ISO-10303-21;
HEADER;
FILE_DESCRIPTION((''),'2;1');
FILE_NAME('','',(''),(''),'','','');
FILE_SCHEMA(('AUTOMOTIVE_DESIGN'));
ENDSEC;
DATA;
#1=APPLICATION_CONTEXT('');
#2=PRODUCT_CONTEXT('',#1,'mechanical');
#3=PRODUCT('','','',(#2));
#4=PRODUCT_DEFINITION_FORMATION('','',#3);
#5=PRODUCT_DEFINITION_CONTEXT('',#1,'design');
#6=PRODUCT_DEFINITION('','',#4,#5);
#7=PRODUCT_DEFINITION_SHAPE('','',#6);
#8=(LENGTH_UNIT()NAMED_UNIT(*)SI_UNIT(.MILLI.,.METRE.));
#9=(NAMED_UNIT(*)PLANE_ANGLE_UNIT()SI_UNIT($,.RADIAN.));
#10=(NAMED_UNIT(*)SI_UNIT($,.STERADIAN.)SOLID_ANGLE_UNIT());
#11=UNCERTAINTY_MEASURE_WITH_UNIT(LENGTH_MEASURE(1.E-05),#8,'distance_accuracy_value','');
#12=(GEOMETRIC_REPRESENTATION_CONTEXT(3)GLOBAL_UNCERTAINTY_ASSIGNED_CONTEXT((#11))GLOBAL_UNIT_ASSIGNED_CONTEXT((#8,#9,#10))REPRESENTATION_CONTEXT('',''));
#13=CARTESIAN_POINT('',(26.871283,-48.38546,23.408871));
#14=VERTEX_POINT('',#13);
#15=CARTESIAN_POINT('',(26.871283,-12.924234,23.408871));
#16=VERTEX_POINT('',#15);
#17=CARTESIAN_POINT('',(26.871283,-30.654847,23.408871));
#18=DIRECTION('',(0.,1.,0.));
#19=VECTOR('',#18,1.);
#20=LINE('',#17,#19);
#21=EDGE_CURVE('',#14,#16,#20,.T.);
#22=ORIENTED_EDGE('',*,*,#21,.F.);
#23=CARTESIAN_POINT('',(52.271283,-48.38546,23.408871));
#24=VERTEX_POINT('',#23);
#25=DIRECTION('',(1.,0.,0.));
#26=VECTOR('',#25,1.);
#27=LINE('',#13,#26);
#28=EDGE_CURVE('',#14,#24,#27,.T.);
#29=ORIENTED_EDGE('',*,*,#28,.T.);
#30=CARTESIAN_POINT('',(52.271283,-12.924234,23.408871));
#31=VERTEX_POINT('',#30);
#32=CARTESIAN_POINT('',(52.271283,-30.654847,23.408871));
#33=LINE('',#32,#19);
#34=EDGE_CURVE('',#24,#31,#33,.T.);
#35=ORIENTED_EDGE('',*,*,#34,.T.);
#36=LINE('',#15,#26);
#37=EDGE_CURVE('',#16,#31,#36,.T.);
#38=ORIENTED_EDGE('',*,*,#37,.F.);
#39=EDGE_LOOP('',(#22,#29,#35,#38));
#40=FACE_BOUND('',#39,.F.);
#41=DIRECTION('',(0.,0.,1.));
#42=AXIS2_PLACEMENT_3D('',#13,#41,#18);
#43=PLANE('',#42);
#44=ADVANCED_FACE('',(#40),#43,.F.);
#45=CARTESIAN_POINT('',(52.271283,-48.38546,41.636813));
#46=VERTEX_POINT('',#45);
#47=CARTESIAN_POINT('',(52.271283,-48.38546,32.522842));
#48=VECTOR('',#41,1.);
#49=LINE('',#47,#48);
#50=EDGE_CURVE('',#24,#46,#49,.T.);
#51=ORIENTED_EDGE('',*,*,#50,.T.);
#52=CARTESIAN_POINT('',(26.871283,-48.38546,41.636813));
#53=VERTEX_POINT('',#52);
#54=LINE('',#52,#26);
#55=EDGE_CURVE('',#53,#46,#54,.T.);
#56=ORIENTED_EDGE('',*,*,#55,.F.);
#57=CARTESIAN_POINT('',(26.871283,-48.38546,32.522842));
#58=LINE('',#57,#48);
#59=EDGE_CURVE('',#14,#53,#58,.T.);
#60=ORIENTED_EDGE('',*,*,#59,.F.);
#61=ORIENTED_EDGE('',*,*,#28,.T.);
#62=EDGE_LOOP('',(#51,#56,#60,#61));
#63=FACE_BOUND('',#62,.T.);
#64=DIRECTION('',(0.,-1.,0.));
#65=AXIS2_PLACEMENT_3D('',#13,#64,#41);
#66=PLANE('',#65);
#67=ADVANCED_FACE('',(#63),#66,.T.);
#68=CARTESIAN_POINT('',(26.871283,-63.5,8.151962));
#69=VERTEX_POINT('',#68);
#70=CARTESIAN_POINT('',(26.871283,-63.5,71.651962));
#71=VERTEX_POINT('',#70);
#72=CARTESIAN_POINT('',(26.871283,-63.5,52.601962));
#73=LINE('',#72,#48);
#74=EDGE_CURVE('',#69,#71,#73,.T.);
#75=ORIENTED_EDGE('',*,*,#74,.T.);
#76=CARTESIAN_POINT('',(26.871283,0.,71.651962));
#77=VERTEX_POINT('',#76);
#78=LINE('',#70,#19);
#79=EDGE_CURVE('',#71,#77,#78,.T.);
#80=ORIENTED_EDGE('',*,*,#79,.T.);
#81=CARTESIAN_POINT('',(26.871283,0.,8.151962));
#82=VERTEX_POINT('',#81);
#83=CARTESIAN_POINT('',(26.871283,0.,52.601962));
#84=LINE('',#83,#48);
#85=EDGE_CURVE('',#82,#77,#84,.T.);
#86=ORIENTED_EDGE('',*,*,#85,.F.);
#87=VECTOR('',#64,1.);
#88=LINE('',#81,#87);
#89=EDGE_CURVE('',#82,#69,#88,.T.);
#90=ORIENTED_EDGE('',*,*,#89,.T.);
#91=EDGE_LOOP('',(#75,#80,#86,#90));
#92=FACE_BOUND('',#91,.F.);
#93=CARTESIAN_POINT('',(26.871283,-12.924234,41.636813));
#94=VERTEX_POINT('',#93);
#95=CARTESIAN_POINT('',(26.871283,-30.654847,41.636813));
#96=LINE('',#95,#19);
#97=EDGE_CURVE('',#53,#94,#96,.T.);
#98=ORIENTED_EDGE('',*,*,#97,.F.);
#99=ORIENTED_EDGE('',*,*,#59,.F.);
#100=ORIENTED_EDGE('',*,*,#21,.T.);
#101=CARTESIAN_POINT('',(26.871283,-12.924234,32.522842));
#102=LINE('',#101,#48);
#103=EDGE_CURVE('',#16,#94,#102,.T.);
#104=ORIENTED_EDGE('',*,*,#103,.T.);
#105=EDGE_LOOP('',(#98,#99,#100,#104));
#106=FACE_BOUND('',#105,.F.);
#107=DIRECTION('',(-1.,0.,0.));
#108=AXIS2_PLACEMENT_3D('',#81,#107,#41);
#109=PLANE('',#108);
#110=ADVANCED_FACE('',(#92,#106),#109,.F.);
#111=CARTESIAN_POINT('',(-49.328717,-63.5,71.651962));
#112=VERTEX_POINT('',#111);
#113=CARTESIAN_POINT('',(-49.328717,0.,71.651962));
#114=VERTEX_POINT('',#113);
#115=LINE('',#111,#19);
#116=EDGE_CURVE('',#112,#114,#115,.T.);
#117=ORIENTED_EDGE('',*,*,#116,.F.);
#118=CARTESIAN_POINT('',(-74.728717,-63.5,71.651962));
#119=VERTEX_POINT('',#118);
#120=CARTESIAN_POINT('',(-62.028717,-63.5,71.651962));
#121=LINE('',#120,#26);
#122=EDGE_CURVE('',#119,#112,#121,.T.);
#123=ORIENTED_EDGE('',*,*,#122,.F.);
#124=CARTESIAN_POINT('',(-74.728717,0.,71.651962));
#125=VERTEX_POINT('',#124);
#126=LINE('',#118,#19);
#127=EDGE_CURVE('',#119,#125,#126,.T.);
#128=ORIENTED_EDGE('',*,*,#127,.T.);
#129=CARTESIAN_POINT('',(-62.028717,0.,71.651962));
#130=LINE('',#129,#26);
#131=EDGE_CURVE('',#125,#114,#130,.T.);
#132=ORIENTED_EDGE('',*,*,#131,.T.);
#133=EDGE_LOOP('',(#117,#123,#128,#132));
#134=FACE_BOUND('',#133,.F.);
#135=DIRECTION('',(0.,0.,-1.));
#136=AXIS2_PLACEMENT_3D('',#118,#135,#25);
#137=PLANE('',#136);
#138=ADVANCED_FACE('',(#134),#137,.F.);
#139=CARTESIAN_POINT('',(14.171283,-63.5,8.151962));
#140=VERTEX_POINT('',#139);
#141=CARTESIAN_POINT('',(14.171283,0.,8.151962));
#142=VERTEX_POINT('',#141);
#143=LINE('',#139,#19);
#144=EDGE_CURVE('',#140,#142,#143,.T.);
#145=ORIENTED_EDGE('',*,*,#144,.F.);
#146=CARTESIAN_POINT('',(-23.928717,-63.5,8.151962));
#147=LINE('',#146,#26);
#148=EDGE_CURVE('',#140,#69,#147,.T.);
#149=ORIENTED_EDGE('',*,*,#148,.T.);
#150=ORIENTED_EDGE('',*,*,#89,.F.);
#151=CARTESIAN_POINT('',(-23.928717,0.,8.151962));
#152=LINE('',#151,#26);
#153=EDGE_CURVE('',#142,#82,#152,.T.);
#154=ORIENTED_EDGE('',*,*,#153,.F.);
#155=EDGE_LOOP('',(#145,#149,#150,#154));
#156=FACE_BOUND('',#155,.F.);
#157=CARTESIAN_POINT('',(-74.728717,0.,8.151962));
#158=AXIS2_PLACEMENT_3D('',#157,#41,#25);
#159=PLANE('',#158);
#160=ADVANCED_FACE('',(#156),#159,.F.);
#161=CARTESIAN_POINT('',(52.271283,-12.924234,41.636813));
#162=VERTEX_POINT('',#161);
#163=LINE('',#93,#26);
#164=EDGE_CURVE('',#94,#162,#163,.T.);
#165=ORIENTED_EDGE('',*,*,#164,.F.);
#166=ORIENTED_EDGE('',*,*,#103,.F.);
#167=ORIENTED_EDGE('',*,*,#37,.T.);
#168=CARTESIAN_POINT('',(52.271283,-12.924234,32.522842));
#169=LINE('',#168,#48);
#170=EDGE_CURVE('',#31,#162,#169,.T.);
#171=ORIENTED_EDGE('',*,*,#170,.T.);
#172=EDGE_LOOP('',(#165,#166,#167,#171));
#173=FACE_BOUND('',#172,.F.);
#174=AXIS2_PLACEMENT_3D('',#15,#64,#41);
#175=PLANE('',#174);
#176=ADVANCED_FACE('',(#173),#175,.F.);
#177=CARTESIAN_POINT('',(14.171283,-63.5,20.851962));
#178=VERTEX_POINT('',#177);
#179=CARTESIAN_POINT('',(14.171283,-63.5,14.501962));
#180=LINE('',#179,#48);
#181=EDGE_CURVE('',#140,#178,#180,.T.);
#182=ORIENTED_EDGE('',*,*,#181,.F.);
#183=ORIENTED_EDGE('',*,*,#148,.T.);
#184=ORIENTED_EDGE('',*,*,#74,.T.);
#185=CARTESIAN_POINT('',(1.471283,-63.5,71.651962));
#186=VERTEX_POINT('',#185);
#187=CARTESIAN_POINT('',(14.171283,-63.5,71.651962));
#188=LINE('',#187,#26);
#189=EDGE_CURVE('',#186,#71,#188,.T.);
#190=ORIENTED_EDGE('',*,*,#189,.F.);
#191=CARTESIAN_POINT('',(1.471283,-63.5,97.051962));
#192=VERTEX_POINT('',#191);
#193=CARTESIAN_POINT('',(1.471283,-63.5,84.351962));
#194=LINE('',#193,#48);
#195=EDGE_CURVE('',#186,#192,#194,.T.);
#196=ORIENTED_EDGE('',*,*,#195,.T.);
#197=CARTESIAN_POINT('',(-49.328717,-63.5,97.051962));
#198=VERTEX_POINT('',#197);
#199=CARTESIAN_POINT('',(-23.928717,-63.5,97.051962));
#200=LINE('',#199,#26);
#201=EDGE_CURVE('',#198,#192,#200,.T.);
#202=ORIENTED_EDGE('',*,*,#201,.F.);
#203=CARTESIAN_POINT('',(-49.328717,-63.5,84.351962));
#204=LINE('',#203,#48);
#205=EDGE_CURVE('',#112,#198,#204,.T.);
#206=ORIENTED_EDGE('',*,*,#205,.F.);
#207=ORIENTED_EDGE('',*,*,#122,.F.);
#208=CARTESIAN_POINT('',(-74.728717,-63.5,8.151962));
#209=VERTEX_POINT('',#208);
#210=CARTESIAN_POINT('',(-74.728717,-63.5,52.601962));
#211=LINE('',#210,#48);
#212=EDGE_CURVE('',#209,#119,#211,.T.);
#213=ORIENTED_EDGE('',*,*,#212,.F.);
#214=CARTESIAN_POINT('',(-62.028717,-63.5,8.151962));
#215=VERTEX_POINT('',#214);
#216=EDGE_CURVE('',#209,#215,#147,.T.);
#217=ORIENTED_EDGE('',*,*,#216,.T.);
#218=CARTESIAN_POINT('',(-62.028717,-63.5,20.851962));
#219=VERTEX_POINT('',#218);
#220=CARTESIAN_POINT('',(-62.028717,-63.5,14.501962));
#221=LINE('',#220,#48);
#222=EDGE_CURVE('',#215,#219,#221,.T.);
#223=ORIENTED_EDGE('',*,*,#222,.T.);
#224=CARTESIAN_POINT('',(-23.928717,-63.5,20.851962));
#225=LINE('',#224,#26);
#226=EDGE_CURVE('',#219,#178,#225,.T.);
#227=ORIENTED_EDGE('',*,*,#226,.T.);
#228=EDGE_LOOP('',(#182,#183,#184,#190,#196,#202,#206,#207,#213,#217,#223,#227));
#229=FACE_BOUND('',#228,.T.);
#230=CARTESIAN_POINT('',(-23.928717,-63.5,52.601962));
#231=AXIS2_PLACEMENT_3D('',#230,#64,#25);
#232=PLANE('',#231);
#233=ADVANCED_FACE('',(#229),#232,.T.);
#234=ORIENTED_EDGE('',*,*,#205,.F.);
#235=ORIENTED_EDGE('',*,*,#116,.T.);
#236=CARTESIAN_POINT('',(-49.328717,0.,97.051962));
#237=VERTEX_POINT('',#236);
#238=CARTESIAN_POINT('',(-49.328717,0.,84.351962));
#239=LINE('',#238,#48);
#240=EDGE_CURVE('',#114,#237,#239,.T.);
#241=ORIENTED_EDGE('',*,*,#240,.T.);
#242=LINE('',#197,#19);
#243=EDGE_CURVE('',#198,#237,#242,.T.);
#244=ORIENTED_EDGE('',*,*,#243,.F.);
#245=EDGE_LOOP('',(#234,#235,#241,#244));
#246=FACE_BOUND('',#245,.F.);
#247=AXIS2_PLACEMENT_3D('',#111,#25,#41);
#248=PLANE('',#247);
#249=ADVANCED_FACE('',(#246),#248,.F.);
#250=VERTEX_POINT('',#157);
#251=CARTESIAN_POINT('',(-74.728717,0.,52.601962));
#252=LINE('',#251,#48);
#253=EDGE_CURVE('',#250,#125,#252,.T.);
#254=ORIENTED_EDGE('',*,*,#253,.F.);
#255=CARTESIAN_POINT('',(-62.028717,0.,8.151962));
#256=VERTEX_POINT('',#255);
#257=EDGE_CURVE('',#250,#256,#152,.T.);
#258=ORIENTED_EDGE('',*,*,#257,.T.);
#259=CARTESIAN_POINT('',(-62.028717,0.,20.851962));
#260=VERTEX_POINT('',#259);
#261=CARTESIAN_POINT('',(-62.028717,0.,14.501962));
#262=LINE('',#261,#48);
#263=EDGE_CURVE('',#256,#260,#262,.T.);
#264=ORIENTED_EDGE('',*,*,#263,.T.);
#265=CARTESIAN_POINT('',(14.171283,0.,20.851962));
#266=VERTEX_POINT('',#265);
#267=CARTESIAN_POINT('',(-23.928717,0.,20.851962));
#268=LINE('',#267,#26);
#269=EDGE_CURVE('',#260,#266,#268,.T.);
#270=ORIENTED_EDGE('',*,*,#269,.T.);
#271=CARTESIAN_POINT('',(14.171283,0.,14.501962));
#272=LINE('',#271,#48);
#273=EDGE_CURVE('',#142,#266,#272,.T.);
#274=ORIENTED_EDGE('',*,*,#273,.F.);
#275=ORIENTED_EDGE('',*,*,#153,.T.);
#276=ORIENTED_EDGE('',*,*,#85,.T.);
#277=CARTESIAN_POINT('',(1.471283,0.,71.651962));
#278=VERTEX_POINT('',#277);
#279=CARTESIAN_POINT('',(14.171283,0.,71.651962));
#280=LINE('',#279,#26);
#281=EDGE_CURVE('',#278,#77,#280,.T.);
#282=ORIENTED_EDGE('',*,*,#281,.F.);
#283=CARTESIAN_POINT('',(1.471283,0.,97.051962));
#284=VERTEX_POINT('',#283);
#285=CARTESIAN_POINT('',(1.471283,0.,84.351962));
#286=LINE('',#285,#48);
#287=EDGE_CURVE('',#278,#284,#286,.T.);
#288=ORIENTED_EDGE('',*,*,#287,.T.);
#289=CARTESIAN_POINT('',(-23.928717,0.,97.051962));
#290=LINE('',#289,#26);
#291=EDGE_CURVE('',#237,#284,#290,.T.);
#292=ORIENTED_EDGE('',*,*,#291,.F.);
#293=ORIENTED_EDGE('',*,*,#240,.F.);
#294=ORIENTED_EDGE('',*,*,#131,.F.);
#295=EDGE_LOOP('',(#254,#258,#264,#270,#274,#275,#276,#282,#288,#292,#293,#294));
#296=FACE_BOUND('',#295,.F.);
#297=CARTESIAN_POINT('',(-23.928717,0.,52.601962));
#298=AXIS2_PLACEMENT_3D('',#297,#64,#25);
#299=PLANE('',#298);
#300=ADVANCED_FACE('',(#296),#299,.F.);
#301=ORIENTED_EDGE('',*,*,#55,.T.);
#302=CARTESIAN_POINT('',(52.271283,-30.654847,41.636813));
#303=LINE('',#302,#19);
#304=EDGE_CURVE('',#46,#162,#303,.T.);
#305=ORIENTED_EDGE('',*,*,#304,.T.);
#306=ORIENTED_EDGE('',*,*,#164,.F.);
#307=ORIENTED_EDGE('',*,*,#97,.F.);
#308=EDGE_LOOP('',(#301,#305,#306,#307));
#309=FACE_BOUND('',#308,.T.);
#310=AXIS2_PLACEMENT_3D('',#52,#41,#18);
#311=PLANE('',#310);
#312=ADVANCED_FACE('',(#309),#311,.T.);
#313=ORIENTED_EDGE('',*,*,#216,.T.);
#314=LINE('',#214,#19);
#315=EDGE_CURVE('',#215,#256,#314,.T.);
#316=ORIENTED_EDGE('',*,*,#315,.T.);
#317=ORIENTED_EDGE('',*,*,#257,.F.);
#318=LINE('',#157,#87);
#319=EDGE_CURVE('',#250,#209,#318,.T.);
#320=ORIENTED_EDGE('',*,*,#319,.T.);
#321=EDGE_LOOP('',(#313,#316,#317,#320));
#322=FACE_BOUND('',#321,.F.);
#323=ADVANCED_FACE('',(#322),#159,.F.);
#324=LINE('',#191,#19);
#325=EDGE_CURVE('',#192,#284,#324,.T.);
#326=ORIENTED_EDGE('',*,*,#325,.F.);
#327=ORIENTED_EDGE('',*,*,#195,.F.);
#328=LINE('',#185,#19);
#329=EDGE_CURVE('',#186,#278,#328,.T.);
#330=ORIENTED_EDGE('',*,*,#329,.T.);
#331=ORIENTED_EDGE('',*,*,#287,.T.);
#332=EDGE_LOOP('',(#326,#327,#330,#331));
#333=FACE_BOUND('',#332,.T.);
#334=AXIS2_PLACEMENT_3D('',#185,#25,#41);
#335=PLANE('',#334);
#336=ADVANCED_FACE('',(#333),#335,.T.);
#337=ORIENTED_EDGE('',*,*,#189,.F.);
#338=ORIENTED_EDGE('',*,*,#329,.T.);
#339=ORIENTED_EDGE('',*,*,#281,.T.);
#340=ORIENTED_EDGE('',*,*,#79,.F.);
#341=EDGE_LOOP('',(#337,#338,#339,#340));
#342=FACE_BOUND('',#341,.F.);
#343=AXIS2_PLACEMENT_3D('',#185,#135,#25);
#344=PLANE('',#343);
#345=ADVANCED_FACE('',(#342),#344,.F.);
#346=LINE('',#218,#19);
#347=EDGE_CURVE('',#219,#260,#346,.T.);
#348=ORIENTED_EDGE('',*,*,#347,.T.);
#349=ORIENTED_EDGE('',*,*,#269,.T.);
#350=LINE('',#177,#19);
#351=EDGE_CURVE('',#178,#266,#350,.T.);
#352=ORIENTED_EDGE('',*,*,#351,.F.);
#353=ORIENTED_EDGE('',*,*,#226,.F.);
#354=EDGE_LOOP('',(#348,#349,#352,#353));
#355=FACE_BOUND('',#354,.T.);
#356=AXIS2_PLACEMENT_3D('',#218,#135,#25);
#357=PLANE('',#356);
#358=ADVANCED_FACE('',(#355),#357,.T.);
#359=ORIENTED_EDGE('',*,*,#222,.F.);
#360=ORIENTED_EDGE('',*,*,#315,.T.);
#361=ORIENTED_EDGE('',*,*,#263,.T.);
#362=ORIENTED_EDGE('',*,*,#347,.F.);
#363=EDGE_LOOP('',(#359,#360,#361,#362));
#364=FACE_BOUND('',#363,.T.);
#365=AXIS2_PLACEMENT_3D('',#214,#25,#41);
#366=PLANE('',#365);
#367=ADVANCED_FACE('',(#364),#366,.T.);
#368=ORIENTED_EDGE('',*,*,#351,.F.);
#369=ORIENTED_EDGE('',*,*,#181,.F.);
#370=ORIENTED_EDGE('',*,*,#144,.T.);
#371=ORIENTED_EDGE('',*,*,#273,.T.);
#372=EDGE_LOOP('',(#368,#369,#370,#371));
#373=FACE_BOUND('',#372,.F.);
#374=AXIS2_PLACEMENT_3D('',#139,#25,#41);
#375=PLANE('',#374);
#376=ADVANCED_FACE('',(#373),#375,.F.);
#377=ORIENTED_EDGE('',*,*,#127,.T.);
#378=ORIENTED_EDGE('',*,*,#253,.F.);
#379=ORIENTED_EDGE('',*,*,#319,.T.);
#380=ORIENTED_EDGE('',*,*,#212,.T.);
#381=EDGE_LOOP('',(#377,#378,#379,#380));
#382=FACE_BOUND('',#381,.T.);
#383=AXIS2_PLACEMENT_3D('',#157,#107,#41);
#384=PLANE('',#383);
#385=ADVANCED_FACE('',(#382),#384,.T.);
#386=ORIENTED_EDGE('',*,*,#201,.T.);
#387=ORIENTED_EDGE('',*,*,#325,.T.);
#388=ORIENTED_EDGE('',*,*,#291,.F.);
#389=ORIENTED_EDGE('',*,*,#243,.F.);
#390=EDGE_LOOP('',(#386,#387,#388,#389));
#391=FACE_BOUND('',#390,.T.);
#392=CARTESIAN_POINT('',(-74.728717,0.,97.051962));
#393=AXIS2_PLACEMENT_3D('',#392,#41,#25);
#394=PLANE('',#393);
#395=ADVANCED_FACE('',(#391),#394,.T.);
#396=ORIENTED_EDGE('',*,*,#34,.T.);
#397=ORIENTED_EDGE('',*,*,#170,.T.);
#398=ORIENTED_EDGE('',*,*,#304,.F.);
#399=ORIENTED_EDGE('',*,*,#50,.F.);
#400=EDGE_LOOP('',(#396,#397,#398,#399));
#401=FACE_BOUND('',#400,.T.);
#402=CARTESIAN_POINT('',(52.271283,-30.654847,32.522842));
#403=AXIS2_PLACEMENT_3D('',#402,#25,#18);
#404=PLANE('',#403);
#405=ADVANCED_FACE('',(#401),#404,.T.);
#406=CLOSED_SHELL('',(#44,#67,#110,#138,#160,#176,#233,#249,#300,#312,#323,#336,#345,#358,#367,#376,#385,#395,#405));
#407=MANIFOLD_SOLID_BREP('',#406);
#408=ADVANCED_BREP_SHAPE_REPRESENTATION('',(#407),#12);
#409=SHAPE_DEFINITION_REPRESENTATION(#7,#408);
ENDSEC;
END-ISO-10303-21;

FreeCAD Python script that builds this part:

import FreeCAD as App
import Part
import Sketcher

V = App.Vector
Q = App.Units.Quantity

doc = App.newDocument("Part")
body = doc.addObject("PartDesign::Body", "Body")

# Sketch on XZ plane
sketch1 = doc.addObject("Sketcher::SketchObject", "Sketch")
body.addObject(sketch1)
sketch1.AttachmentSupport = (doc.XZ_Plane, [""])
sketch1.MapMode = "FlatFace"
sketch1.addGeometry([
    Part.LineSegment(V(-75, 97, 0), V(-75, 8, 0)),
    Part.LineSegment(V(-75, 8, 0), V(27, 8, 0)),
    Part.LineSegment(V(27, 8, 0), V(27, 97, 0)),
    Part.LineSegment(V(27, 97, 0), V(-75, 97, 0)),
], False)
sketch1.addConstraint([
    Sketcher.Constraint("Coincident", 0, 2, 1, 1),
    Sketcher.Constraint("Coincident", 1, 2, 2, 1),
    Sketcher.Constraint("Coincident", 2, 2, 3, 1),
    Sketcher.Constraint("Coincident", 3, 2, 0, 1),
    Sketcher.Constraint("Vertical", 0),
    Sketcher.Constraint("Horizontal", 1),
    Sketcher.Constraint("Vertical", 2),
    Sketcher.Constraint("Horizontal", 3),
    Sketcher.Constraint("DistanceX", 1, 1, 1, 2, Q("4 in")),
    Sketcher.Constraint("DistanceY", 0, 2, 0, 1, Q("3.5 in")),
    Sketcher.Constraint("DistanceY", -1, 1, 0, 2, 8.151962),
    Sketcher.Constraint("DistanceX", 0, 2, -1, 1, 74.728717),
])
pad1 = doc.addObject("PartDesign::Pad", "Pad")
body.addObject(pad1)
pad1.Profile = sketch1
pad1.Length = Q("2.5 in")

# Sketch on XZ plane
sketch2 = doc.addObject("Sketcher::SketchObject", "Sketch001")
body.addObject(sketch2)
sketch2.AttachmentSupport = (doc.XZ_Plane, [""])
sketch2.MapMode = "FlatFace"
sketch2.AttachmentOffset = App.Placement(V(0, 0, 2.5 * 25.4), App.Rotation())
sketch2.addGeometry([
    Part.LineSegment(V(-75, 97, 0), V(-75, 72, 0)),
    Part.LineSegment(V(-75, 72, 0), V(-49, 72, 0)),
    Part.LineSegment(V(-49, 72, 0), V(-49, 97, 0)),
    Part.LineSegment(V(-49, 97, 0), V(-75, 97, 0)),
], False)
sketch2.addConstraint([
    Sketcher.Constraint("Coincident", 0, 2, 1, 1),
    Sketcher.Constraint("Coincident", 1, 2, 2, 1),
    Sketcher.Constraint("Coincident", 2, 2, 3, 1),
    Sketcher.Constraint("Coincident", 3, 2, 0, 1),
    Sketcher.Constraint("Vertical", 0),
    Sketcher.Constraint("Horizontal", 1),
    Sketcher.Constraint("Vertical", 2),
    Sketcher.Constraint("Horizontal", 3),
    Sketcher.Constraint("Equal", 3, 0),
    Sketcher.Constraint("DistanceX", 1, 1, 1, 2, Q("1 in")),
    Sketcher.Constraint("DistanceY", -1, 1, 0, 2, 71.651962),
    Sketcher.Constraint("DistanceX", 0, 2, -1, 1, 74.728717),
])
pocket1 = doc.addObject("PartDesign::Pocket", "Pocket")
body.addObject(pocket1)
pocket1.Profile = sketch2
pocket1.Length = Q("2.5 in")

# Sketch on XZ plane
sketch3 = doc.addObject("Sketcher::SketchObject", "Sketch002")
body.addObject(sketch3)
sketch3.AttachmentSupport = (doc.XZ_Plane, [""])
sketch3.MapMode = "FlatFace"
sketch3.AttachmentOffset = App.Placement(V(0, 0, 2.5 * 25.4), App.Rotation())
sketch3.addGeometry([
    Part.LineSegment(V(1, 97, 0), V(1, 72, 0)),
    Part.LineSegment(V(1, 72, 0), V(27, 72, 0)),
    Part.LineSegment(V(27, 72, 0), V(27, 97, 0)),
    Part.LineSegment(V(27, 97, 0), V(1, 97, 0)),
], False)
sketch3.addConstraint([
    Sketcher.Constraint("Coincident", 0, 2, 1, 1),
    Sketcher.Constraint("Coincident", 1, 2, 2, 1),
    Sketcher.Constraint("Coincident", 2, 2, 3, 1),
    Sketcher.Constraint("Coincident", 3, 2, 0, 1),
    Sketcher.Constraint("Vertical", 0),
    Sketcher.Constraint("Horizontal", 1),
    Sketcher.Constraint("Vertical", 2),
    Sketcher.Constraint("Horizontal", 3),
    Sketcher.Constraint("Equal", 3, 0),
    Sketcher.Constraint("DistanceX", 1, 1, 1, 2, Q("1 in")),
    Sketcher.Constraint("DistanceY", -1, 1, 0, 2, 71.651962),
    Sketcher.Constraint("DistanceX", -1, 1, 0, 2, 1.471283),
])
pocket2 = doc.addObject("PartDesign::Pocket", "Pocket001")
body.addObject(pocket2)
pocket2.Profile = sketch3
pocket2.Length = Q("2.5 in")

# Sketch on XZ plane
sketch4 = doc.addObject("Sketcher::SketchObject", "Sketch003")
body.addObject(sketch4)
sketch4.AttachmentSupport = (doc.XZ_Plane, [""])
sketch4.MapMode = "FlatFace"
sketch4.AttachmentOffset = App.Placement(V(0, 0, 2.5 * 25.4), App.Rotation())
sketch4.addGeometry([
    Part.LineSegment(V(-62, 21, 0), V(-62, 8, 0)),
    Part.LineSegment(V(-62, 8, 0), V(14, 8, 0)),
    Part.LineSegment(V(14, 8, 0), V(14, 21, 0)),
    Part.LineSegment(V(14, 21, 0), V(-62, 21, 0)),
], False)
sketch4.addConstraint([
    Sketcher.Constraint("Coincident", 0, 2, 1, 1),
    Sketcher.Constraint("Coincident", 1, 2, 2, 1),
    Sketcher.Constraint("Coincident", 2, 2, 3, 1),
    Sketcher.Constraint("Coincident", 3, 2, 0, 1),
    Sketcher.Constraint("Vertical", 0),
    Sketcher.Constraint("Horizontal", 1),
    Sketcher.Constraint("Vertical", 2),
    Sketcher.Constraint("Horizontal", 3),
    Sketcher.Constraint("DistanceX", 1, 1, 1, 2, Q("3 in")),
    Sketcher.Constraint("DistanceY", 0, 2, 0, 1, Q("0.5 in")),
    Sketcher.Constraint("DistanceY", -1, 1, 0, 2, 8.151962),
    Sketcher.Constraint("DistanceX", 0, 2, -1, 1, 62.028717),
])
pocket3 = doc.addObject("PartDesign::Pocket", "Pocket002")
body.addObject(pocket3)
pocket3.Profile = sketch4
pocket3.Length = Q("2.5 in")

# Sketch on YZ plane
sketch5 = doc.addObject("Sketcher::SketchObject", "Sketch004")
body.addObject(sketch5)
sketch5.AttachmentSupport = (doc.YZ_Plane, [""])
sketch5.MapMode = "FlatFace"
sketch5.AttachmentOffset = App.Placement(V(0, 0, 26.871283), App.Rotation())
sketch5.addGeometry([
    Part.LineSegment(V(-48, 42, 0), V(-48, 23, 0)),
    Part.LineSegment(V(-48, 23, 0), V(-13, 23, 0)),
    Part.LineSegment(V(-13, 23, 0), V(-13, 42, 0)),
    Part.LineSegment(V(-13, 42, 0), V(-48, 42, 0)),
], False)
sketch5.addConstraint([
    Sketcher.Constraint("Coincident", 0, 2, 1, 1),
    Sketcher.Constraint("Coincident", 1, 2, 2, 1),
    Sketcher.Constraint("Coincident", 2, 2, 3, 1),
    Sketcher.Constraint("Coincident", 3, 2, 0, 1),
    Sketcher.Constraint("Vertical", 0),
    Sketcher.Constraint("Horizontal", 1),
    Sketcher.Constraint("Vertical", 2),
    Sketcher.Constraint("Horizontal", 3),
    Sketcher.Constraint("DistanceY", 0, 2, 0, 1, 18.227942),
    Sketcher.Constraint("DistanceX", 1, 1, 1, 2, 35.461226),
    Sketcher.Constraint("DistanceX", 0, 2, -1, 1, 48.38546),
    Sketcher.Constraint("DistanceY", -1, 1, 0, 2, 23.408871),
])
pad2 = doc.addObject("PartDesign::Pad", "Pad001")
body.addObject(pad2)
pad2.Profile = sketch5
pad2.Length = Q("1 in")

doc.recompute()
